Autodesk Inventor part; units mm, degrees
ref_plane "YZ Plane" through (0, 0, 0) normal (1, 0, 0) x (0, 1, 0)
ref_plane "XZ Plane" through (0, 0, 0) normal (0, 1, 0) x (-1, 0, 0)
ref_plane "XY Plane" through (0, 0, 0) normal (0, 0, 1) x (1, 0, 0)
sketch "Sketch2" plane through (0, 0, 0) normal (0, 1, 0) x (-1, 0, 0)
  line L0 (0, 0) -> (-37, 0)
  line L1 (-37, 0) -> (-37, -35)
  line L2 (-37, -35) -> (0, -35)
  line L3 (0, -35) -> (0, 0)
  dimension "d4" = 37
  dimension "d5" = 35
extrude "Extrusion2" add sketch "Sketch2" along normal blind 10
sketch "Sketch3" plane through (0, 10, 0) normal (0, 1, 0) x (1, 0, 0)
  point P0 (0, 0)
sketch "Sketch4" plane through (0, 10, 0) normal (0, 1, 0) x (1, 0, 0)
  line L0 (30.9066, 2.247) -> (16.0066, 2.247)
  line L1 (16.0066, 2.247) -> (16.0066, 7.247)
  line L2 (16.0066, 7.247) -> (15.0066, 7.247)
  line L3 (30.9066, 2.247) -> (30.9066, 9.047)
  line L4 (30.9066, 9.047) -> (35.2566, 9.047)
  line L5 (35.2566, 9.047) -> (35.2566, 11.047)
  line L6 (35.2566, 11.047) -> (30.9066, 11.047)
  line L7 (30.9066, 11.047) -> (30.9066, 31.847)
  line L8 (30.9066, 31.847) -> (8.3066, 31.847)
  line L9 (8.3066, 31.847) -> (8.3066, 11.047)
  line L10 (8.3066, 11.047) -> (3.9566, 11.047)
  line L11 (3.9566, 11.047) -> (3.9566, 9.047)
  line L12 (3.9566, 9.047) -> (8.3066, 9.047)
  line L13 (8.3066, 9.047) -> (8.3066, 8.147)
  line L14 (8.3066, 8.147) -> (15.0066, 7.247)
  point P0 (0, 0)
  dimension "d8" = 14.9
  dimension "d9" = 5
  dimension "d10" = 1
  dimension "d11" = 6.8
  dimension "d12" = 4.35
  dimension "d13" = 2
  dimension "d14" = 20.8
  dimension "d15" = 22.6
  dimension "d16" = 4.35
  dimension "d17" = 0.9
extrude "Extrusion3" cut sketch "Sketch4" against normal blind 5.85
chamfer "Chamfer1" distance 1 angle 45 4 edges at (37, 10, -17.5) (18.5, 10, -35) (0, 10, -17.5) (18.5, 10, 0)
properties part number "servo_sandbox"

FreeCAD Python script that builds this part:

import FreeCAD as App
import Part
import Sketcher
from FreeCAD import Vector


def edges_at(feature, points):
    """Names of the edges that pass closest to the given points."""
    edges = feature.Shape.Edges
    near = lambda p: min(range(len(edges)), key=lambda i: edges[i].distToShape(Part.Vertex(*p))[0])
    return sorted({f"Edge{near(p) + 1}" for p in points})


def add_polygon(sketch, points):
    """Adds a closed chain of lines whose ends are joined by coincident constraints."""
    first, n = sketch.GeometryCount, len(points)
    for a, b in zip(points, points[1:] + points[:1]):
        sketch.addGeometry(Part.LineSegment(App.Vector(*a, 0), App.Vector(*b, 0)), False)
    for i in range(n):
        sketch.addConstraint(Sketcher.Constraint("Coincident", first + i, 2, first + (i + 1) % n, 1))

doc = App.newDocument("Part")
body = doc.addObject("PartDesign::Body", "Body")

sketch1 = body.newObject("Sketcher::SketchObject", "Sketch")
sketch1.AttachmentSupport = (doc.getObject("XZ_Plane"), [""])
sketch1.MapMode = "FlatFace"
add_polygon(sketch1, [(0, -35), (0, 0), (37, 0), (37, -35)])
sketch1.addConstraint([
    Sketcher.Constraint("Vertical", 0),
    Sketcher.Constraint("Horizontal", 1),
    Sketcher.Constraint("Vertical", 2),
    Sketcher.Constraint("Horizontal", 3),
    Sketcher.Constraint("Coincident", 0, 2, -1, 1),
    Sketcher.Constraint("DistanceX", 1, 1, 1, 2, 37.0),
    Sketcher.Constraint("DistanceY", 0, 1, 0, 2, 35.0),
])
pad1 = body.newObject("PartDesign::Pad", "Pad")
pad1.Profile = sketch1
pad1.Length = 10
pad1.Reversed = True

sketch2 = body.newObject("Sketcher::SketchObject", "Sketch001")
sketch2.AttachmentSupport = (doc.getObject("XZ_Plane"), [""])
sketch2.MapMode = "FlatFace"
sketch2.AttachmentOffset = App.Placement(Vector(0, 0, -10), App.Rotation())
add_polygon(sketch2, [(16.0066, -2.247), (30.9066, -2.247), (30.9066, -9.047), (35.2566, -9.047), (35.2566, -11.047), (30.9066, -11.047), (30.9066, -31.847), (8.3066, -31.847), (8.3066, -11.047), (3.9566, -11.047), (3.9566, -9.047), (8.3066, -9.047), (8.3066, -8.147), (15.0066, -7.247), (16.0066, -7.247)])
sketch2.addConstraint([
    Sketcher.Constraint("Horizontal", 0),
    Sketcher.Constraint("Vertical", 1),
    Sketcher.Constraint("Horizontal", 2),
    Sketcher.Constraint("Vertical", 3),
    Sketcher.Constraint("Horizontal", 4),
    Sketcher.Constraint("Vertical", 5),
    Sketcher.Constraint("Horizontal", 6),
    Sketcher.Constraint("Vertical", 7),
    Sketcher.Constraint("Horizontal", 8),
    Sketcher.Constraint("Vertical", 9),
    Sketcher.Constraint("Horizontal", 10),
    Sketcher.Constraint("Vertical", 11),
    Sketcher.Constraint("Horizontal", 13),
    Sketcher.Constraint("Vertical", 14),
    Sketcher.Constraint("Horizontal", 4, 2, 7, 2),
    Sketcher.Constraint("Horizontal", 2, 2, 9, 2),
    Sketcher.Constraint("Vertical", 1, 2, 4, 2),
    Sketcher.Constraint("Vertical", 7, 2, 10, 2),
    Sketcher.Constraint("Equal", 4, 8),
    Sketcher.Constraint("DistanceX", 13, 1, 13, 2, 1.0),
    Sketcher.Constraint("DistanceY", 3, 2, 3, 1, 2.0),
    Sketcher.Constraint("DistanceY", 14, 1, 14, 2, 5.0),
    Sketcher.Constraint("DistanceX", 0, 1, 0, 2, 14.9),
    Sketcher.Constraint("DistanceX", 6, 2, 6, 1, 22.6),
    Sketcher.Constraint("DistanceY", 1, 2, 1, 1, 6.8),
    Sketcher.Constraint("DistanceY", 5, 2, 5, 1, 20.8),
    Sketcher.Constraint("DistanceY", 11, 1, 11, 2, 0.9),
    Sketcher.Constraint("DistanceX", 2, 1, 2, 2, 4.35),
    Sketcher.Constraint("DistanceY", 0, 2, -1, 1, 2.247),
    Sketcher.Constraint("DistanceX", -1, 1, 0, 2, 30.9066),
])
pocket1 = body.newObject("PartDesign::Pocket", "Pocket")
pocket1.Profile = sketch2
pocket1.Length = 5.85
pocket1.Reversed = True
doc.recompute()

chamfer = body.newObject("PartDesign::Chamfer", "Chamfer")
chamfer.Base = (pocket1, edges_at(pocket1, [
    (37, 10, -17.5),
    (18.5, 10, -35),
    (0, 10, -17.5),
    (18.5, 10, 0),
]))
chamfer.Size = 1

doc.recompute()
